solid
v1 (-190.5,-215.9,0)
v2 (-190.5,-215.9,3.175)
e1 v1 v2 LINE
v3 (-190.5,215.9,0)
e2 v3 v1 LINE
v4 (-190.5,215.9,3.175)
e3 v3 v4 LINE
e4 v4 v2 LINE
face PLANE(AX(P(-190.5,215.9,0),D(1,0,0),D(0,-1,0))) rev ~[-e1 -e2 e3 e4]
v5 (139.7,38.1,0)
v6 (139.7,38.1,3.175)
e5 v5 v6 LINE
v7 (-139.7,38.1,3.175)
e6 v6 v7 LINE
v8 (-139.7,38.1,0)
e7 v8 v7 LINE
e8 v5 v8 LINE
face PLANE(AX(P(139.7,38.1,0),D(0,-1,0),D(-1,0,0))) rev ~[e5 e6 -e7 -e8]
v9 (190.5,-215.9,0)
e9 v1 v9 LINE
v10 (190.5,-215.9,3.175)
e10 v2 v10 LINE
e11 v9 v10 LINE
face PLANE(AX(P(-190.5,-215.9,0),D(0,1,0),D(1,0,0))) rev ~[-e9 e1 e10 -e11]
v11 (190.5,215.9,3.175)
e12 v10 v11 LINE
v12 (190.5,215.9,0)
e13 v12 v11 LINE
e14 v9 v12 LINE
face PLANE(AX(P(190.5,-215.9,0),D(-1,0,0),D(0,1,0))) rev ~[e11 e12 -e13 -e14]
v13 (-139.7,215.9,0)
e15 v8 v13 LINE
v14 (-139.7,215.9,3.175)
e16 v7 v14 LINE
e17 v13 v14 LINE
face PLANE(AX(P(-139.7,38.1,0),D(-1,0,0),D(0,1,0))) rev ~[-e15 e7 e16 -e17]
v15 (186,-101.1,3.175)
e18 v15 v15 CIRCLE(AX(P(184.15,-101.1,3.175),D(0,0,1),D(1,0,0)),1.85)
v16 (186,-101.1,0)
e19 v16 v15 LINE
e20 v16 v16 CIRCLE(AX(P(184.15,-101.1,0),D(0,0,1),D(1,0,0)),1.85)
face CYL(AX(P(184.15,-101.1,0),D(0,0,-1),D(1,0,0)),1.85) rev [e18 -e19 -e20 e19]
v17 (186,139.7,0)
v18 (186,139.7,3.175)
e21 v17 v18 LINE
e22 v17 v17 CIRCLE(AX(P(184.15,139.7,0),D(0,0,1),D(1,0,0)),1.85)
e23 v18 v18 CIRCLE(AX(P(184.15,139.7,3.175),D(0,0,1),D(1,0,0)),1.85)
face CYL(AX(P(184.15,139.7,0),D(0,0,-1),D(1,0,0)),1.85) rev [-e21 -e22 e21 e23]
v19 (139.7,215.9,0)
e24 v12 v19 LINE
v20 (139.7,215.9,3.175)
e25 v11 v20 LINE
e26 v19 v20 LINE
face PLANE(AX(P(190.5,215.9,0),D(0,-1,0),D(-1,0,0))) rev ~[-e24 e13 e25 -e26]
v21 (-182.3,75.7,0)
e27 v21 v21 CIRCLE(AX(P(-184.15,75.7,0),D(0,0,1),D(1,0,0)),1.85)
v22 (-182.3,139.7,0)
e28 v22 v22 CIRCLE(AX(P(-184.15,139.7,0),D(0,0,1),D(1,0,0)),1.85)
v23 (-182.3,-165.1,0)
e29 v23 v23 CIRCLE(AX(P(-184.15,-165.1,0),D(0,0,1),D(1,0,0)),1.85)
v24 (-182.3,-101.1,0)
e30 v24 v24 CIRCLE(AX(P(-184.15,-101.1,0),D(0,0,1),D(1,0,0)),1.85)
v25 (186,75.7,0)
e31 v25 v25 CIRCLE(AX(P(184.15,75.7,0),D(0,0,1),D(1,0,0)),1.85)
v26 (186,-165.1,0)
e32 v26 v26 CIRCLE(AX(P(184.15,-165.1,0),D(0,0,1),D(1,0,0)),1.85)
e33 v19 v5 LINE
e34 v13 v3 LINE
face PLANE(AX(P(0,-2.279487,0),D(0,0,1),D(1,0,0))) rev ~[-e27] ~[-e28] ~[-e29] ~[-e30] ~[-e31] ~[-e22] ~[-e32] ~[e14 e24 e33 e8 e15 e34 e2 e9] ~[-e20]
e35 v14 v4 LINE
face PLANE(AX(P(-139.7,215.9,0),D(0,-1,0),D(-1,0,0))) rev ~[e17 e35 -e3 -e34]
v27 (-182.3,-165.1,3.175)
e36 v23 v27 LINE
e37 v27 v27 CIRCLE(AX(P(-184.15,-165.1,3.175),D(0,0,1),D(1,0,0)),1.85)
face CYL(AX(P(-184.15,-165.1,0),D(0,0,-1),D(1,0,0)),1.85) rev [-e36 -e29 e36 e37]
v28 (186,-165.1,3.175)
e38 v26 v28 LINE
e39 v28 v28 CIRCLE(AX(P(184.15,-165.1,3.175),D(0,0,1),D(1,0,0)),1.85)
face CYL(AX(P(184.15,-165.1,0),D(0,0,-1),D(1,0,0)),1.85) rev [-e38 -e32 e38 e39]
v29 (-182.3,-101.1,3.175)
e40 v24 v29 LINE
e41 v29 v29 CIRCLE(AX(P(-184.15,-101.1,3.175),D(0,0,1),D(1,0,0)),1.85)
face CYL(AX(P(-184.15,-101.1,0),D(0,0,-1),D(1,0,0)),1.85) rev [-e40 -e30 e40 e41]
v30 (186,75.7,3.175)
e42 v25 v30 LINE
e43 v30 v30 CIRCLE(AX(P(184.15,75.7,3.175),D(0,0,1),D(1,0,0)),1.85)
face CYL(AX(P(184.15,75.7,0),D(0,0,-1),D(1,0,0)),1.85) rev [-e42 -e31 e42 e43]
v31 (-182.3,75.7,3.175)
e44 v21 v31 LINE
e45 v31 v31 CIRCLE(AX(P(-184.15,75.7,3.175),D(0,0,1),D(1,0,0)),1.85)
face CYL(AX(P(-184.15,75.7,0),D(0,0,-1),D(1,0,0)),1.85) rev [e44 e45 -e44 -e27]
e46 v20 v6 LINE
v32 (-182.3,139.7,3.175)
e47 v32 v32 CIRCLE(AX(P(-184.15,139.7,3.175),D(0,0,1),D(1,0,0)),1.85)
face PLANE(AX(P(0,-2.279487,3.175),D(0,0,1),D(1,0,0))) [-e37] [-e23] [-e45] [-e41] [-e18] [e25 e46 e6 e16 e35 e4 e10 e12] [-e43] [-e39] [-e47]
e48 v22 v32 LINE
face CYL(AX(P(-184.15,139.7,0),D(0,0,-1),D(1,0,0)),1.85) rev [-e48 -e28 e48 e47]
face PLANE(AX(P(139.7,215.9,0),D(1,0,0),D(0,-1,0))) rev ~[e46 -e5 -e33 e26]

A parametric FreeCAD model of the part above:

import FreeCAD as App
import Part
import Sketcher
Q = App.Units.Quantity

doc = App.newDocument("Part")
body = doc.addObject("PartDesign::Body", "Body")

# Sketch on XY plane
sketch1 = body.newObject("Sketcher::SketchObject", "Sketch")
sketch1.AttachmentSupport = (doc.getObject("XY_Plane"), [""])
sketch1.MapMode = "FlatFace"
sketch1.addGeometry([
    Part.LineSegment(App.Vector(190.5, -215.9, 0), App.Vector(190.5, 215.9, 0)),  # 0
    Part.LineSegment(App.Vector(190.5, 215.9, 0), App.Vector(139.7, 215.9, 0)),  # 1
    Part.LineSegment(App.Vector(139.7, 215.9, 0), App.Vector(139.7, 38.1, 0)),  # 2
    Part.LineSegment(App.Vector(139.7, 38.1, 0), App.Vector(-139.7, 38.1, 0)),  # 3
    Part.LineSegment(App.Vector(-139.7, 38.1, 0), App.Vector(-139.7, 215.9, 0)),  # 4
    Part.LineSegment(App.Vector(-139.7, 215.9, 0), App.Vector(-190.5, 215.9, 0)),  # 5
    Part.LineSegment(App.Vector(-190.5, 215.9, 0), App.Vector(-190.5, -215.9, 0)),  # 6
    Part.LineSegment(App.Vector(-190.5, -215.9, 0), App.Vector(190.5, -215.9, 0)),  # 7
    Part.Circle(App.Vector(-184.2, -165.1, 0), App.Vector(0, 0, 1), 1.9),  # 8
    Part.Circle(App.Vector(-184.2, -101.1, 0), App.Vector(0, 0, 1), 1.9),  # 9
    Part.Circle(App.Vector(184.2, -165.1, 0), App.Vector(0, 0, 1), 1.9),  # 10
    Part.Circle(App.Vector(184.2, -101.1, 0), App.Vector(0, 0, 1), 1.9),  # 11
    Part.Circle(App.Vector(-184.2, 75.7, 0), App.Vector(0, 0, 1), 1.9),  # 12
    Part.Circle(App.Vector(-184.2, 139.7, 0), App.Vector(0, 0, 1), 1.9),  # 13
    Part.Circle(App.Vector(184.2, 75.7, 0), App.Vector(0, 0, 1), 1.9),  # 14
    Part.Circle(App.Vector(184.2, 139.7, 0), App.Vector(0, 0, 1), 1.9),  # 15
], False)
sketch1.addConstraint([
    Sketcher.Constraint("Coincident", 0, 2, 1, 1),
    Sketcher.Constraint("Coincident", 1, 2, 2, 1),
    Sketcher.Constraint("Coincident", 2, 2, 3, 1),
    Sketcher.Constraint("Coincident", 3, 2, 4, 1),
    Sketcher.Constraint("Coincident", 4, 2, 5, 1),
    Sketcher.Constraint("Coincident", 5, 2, 6, 1),
    Sketcher.Constraint("Coincident", 6, 2, 7, 1),
    Sketcher.Constraint("Coincident", 7, 2, 0, 1),
    Sketcher.Constraint("Vertical", 0),
    Sketcher.Constraint("Horizontal", 1),
    Sketcher.Constraint("Vertical", 2),
    Sketcher.Constraint("Horizontal", 3),
    Sketcher.Constraint("Vertical", 4),
    Sketcher.Constraint("Horizontal", 5),
    Sketcher.Constraint("Vertical", 6),
    Sketcher.Constraint("Horizontal", 7),
    Sketcher.Constraint("Equal", 8, 9),
    Sketcher.Constraint("Equal", 9, 10),
    Sketcher.Constraint("Equal", 10, 11),
    Sketcher.Constraint("Equal", 11, 12),
    Sketcher.Constraint("Equal", 12, 13),
    Sketcher.Constraint("Equal", 13, 14),
    Sketcher.Constraint("Equal", 14, 15),
    Sketcher.Constraint("Symmetric", 0, 2, 6, 2, -1, 1),
    Sketcher.Constraint("Symmetric", 8, 3, 10, 3, -2),
    Sketcher.Constraint("Symmetric", 9, 3, 11, 3, -2),
    Sketcher.Constraint("Symmetric", 12, 3, 14, 3, -2),
    Sketcher.Constraint("Symmetric", 13, 3, 15, 3, -2),
    Sketcher.Constraint("Symmetric", 1, 2, 4, 2, -2),
    Sketcher.Constraint("Vertical", 8, 3, 9, 3),
    Sketcher.Constraint("Vertical", 9, 3, 12, 3),
    Sketcher.Constraint("Vertical", 12, 3, 13, 3),
    Sketcher.Constraint("DistanceX", 1, 2, 1, 1, Q("2 in")),
    Sketcher.Constraint("DistanceX", 3, 2, 3, 1, Q("11 in")),
    Sketcher.Constraint("DistanceY", 0, 1, 0, 2, Q("17 in")),
    Sketcher.Constraint("DistanceY", 2, 2, 2, 1, Q("7 in")),
    Sketcher.Constraint("DistanceY", 8, 3, 13, 3, Q("12 in")),
    Sketcher.Constraint("DistanceY", 15, 3, 0, 2, Q("3 in")),
    Sketcher.Constraint("DistanceX", 8, 3, 10, 3, Q("14.5 in")),
    Sketcher.Constraint("Diameter", 8, Q("3.7 mm")),
    Sketcher.Constraint("DistanceY", 9, 3, -1, 1, Q("101.1 mm")),
    Sketcher.Constraint("DistanceY", -1, 1, 12, 3, Q("75.7 mm")),
])
pad1 = body.newObject("PartDesign::Pad", "Pad")
pad1.Profile = sketch1
pad1.Length = Q("0.125 in")

doc.recompute()
